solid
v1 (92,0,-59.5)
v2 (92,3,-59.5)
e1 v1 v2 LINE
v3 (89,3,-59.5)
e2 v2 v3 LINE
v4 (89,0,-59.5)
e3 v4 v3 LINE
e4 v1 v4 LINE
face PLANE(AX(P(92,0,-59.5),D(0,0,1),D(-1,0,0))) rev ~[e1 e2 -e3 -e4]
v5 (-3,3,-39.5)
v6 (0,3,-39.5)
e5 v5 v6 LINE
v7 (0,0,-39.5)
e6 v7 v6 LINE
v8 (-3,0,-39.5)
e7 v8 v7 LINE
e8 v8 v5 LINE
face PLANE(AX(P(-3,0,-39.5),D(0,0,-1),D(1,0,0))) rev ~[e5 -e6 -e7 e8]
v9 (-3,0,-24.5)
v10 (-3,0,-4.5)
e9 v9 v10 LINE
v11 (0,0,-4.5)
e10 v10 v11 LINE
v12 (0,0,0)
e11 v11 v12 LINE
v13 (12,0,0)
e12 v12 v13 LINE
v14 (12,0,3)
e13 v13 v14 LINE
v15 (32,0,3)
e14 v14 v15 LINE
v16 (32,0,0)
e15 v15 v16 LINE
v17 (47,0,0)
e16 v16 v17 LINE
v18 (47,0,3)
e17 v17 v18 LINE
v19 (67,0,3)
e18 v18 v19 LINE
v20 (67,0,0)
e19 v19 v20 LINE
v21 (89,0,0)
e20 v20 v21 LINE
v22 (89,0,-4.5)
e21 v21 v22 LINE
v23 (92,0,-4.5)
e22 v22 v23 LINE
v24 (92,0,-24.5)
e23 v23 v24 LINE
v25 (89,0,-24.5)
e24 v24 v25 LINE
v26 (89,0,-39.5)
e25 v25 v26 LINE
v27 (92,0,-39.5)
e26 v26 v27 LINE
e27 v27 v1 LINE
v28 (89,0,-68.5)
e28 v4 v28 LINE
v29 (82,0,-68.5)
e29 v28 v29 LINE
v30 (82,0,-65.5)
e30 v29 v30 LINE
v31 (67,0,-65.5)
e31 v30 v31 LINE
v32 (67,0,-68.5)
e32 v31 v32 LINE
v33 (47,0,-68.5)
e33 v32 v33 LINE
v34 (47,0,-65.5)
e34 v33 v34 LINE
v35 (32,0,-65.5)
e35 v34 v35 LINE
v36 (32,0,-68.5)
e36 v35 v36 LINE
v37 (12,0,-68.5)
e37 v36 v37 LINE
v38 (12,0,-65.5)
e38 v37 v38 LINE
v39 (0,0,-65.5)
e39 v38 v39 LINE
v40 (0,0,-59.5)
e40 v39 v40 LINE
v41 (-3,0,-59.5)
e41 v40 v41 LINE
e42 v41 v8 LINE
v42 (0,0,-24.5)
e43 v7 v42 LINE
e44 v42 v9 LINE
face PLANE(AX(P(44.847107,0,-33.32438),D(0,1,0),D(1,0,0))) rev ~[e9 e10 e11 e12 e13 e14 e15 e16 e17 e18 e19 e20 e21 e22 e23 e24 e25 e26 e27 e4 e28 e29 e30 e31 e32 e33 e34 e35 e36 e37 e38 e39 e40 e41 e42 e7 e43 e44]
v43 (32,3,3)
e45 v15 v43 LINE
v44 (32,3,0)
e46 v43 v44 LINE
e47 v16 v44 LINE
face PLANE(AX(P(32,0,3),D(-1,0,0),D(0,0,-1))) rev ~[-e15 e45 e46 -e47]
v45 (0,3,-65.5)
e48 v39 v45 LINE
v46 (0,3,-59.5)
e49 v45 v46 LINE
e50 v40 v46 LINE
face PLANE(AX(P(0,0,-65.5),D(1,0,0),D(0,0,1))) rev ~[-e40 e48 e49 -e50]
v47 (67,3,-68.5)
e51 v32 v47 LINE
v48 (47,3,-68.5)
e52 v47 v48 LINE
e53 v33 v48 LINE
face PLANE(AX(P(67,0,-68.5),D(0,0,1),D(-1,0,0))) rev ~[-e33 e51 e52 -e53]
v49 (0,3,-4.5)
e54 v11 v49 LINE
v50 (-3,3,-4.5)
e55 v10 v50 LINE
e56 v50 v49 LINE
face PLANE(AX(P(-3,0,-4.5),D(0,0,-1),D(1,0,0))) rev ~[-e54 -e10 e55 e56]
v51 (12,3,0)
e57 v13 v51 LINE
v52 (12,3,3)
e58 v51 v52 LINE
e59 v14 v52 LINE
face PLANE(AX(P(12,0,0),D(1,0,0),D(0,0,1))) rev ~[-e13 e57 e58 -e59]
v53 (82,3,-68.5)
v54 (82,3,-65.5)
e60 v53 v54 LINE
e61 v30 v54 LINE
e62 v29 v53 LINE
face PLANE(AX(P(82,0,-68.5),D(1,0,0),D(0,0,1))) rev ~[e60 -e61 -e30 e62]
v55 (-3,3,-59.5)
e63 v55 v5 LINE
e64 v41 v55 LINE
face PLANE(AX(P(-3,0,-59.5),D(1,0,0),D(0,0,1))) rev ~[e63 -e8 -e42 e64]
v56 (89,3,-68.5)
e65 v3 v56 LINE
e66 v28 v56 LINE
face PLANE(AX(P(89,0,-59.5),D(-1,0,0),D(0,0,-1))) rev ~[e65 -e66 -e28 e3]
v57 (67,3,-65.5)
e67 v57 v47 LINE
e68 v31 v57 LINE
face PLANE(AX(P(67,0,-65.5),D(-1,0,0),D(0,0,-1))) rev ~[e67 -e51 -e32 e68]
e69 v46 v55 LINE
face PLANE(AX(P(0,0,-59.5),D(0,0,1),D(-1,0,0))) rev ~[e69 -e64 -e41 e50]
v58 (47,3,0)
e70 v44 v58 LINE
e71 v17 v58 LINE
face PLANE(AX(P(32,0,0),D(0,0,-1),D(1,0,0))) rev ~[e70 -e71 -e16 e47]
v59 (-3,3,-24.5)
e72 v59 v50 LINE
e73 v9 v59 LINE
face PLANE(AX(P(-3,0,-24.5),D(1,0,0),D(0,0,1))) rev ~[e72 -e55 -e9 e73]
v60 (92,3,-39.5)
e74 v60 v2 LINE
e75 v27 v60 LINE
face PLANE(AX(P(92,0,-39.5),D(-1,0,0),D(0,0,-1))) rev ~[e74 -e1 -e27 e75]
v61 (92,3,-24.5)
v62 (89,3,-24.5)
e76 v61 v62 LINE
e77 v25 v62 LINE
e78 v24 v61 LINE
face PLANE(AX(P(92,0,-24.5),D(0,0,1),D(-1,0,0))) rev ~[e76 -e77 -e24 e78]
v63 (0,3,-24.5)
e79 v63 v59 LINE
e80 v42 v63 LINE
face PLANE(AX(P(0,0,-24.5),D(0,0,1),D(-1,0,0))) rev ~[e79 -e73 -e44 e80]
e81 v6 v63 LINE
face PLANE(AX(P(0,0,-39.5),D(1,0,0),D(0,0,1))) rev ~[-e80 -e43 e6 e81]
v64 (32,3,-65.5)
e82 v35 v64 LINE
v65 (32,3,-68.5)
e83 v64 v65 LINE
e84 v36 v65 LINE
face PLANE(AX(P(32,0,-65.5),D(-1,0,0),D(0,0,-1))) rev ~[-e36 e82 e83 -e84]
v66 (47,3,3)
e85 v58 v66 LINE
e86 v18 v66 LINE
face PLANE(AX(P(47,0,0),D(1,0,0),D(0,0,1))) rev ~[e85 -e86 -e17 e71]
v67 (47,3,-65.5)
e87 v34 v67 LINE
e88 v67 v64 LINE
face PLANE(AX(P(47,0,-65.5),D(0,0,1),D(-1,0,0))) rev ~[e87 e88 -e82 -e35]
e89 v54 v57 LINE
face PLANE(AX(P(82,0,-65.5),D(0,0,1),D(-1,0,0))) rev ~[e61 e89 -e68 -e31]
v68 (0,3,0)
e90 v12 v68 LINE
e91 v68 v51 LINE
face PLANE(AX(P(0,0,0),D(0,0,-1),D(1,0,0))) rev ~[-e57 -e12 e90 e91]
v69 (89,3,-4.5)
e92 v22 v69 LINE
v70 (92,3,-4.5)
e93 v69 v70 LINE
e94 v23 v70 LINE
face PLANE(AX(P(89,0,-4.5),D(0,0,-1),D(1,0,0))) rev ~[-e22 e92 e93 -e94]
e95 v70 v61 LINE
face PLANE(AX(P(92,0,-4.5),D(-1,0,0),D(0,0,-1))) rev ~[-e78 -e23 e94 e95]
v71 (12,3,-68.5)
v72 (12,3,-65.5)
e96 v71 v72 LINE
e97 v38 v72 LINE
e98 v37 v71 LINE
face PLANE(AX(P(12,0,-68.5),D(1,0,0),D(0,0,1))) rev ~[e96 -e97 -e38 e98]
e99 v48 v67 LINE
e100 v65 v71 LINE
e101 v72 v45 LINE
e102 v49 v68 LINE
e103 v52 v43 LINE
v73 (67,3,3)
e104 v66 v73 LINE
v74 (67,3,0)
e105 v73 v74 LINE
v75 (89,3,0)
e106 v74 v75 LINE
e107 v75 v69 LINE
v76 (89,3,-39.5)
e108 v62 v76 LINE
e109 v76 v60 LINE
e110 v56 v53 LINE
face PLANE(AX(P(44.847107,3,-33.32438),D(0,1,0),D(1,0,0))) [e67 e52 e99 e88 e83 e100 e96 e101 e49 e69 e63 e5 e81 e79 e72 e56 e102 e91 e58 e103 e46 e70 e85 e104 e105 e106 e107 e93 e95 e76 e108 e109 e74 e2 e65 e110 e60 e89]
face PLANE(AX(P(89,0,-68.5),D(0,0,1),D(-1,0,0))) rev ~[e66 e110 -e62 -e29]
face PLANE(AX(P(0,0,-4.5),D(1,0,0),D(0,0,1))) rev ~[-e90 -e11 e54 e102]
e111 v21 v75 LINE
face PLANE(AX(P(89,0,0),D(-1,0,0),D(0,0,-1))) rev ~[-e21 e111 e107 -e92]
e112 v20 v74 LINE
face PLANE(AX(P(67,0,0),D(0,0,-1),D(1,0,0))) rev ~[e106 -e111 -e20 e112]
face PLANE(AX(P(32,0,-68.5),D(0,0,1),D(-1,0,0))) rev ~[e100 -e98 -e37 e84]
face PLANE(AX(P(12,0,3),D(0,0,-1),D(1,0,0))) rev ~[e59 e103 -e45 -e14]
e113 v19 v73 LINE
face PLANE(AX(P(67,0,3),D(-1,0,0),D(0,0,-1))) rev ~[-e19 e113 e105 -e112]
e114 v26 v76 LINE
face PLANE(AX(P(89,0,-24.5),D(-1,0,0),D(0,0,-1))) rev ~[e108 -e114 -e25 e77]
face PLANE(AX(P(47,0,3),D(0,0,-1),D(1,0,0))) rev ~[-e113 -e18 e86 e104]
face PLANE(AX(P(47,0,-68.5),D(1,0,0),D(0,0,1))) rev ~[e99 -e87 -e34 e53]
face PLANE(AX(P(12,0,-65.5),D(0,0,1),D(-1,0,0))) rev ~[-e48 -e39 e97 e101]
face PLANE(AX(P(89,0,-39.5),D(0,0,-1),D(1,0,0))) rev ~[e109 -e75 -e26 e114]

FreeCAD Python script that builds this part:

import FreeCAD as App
import Part
import Sketcher

doc = App.newDocument("Part")
body = doc.addObject("PartDesign::Body", "Body")

# Sketch on XZ plane
sketch1 = body.newObject("Sketcher::SketchObject", "Sketch")
sketch1.AttachmentSupport = (doc.getObject("XZ_Plane"), [""])
sketch1.MapMode = "FlatFace"
sketch1.addGeometry(Part.LineSegment(App.Vector(12, -65.5, 0), App.Vector(0, -65.5, 0)), False)
sketch1.addGeometry(Part.LineSegment(App.Vector(0, -65.5, 0), App.Vector(0, -59.5, 0)), False)
sketch1.addGeometry(Part.LineSegment(App.Vector(0, -59.5, 0), App.Vector(-3, -59.5, 0)), False)
sketch1.addGeometry(Part.LineSegment(App.Vector(-3, -59.5, 0), App.Vector(-3, -39.5, 0)), False)
sketch1.addGeometry(Part.LineSegment(App.Vector(-3, -39.5, 0), App.Vector(0, -39.5, 0)), False)
sketch1.addGeometry(Part.LineSegment(App.Vector(0, -39.5, 0), App.Vector(0, -24.5, 0)), False)
sketch1.addGeometry(Part.LineSegment(App.Vector(0, -24.5, 0), App.Vector(-3, -24.5, 0)), False)
sketch1.addGeometry(Part.LineSegment(App.Vector(-3, -24.5, 0), App.Vector(-3, -4.5, 0)), False)
sketch1.addGeometry(Part.LineSegment(App.Vector(-3, -4.5, 0), App.Vector(0, -4.5, 0)), False)
sketch1.addGeometry(Part.LineSegment(App.Vector(0, -4.5, 0), App.Vector(0, 0, 0)), False)
sketch1.addGeometry(Part.LineSegment(App.Vector(0, 0, 0), App.Vector(12, 0, 0)), False)
sketch1.addGeometry(Part.LineSegment(App.Vector(12, 0, 0), App.Vector(12, 3, 0)), False)
sketch1.addGeometry(Part.LineSegment(App.Vector(12, 3, 0), App.Vector(32, 3, 0)), False)
sketch1.addGeometry(Part.LineSegment(App.Vector(32, 3, 0), App.Vector(32, 0, 0)), False)
sketch1.addGeometry(Part.LineSegment(App.Vector(32, 0, 0), App.Vector(47, 0, 0)), False)
sketch1.addGeometry(Part.LineSegment(App.Vector(47, 0, 0), App.Vector(47, 3, 0)), False)
sketch1.addGeometry(Part.LineSegment(App.Vector(47, 3, 0), App.Vector(67, 3, 0)), False)
sketch1.addGeometry(Part.LineSegment(App.Vector(67, 3, 0), App.Vector(67, 0, 0)), False)
sketch1.addGeometry(Part.LineSegment(App.Vector(67, 0, 0), App.Vector(89, 0, 0)), False)
sketch1.addGeometry(Part.LineSegment(App.Vector(89, 0, 0), App.Vector(89, -4.5, 0)), False)
sketch1.addGeometry(Part.LineSegment(App.Vector(89, -4.5, 0), App.Vector(92, -4.5, 0)), False)
sketch1.addGeometry(Part.LineSegment(App.Vector(92, -4.5, 0), App.Vector(92, -24.5, 0)), False)
sketch1.addGeometry(Part.LineSegment(App.Vector(92, -24.5, 0), App.Vector(89, -24.5, 0)), False)
sketch1.addGeometry(Part.LineSegment(App.Vector(89, -24.5, 0), App.Vector(89, -39.5, 0)), False)
sketch1.addGeometry(Part.LineSegment(App.Vector(89, -39.5, 0), App.Vector(92, -39.5, 0)), False)
sketch1.addGeometry(Part.LineSegment(App.Vector(92, -39.5, 0), App.Vector(92, -59.5, 0)), False)
sketch1.addGeometry(Part.LineSegment(App.Vector(92, -59.5, 0), App.Vector(89, -59.5, 0)), False)
sketch1.addGeometry(Part.LineSegment(App.Vector(89, -59.5, 0), App.Vector(89, -68.5, 0)), False)
sketch1.addGeometry(Part.LineSegment(App.Vector(89, -68.5, 0), App.Vector(82, -68.5, 0)), False)
sketch1.addGeometry(Part.LineSegment(App.Vector(82, -68.5, 0), App.Vector(82, -65.5, 0)), False)
sketch1.addGeometry(Part.LineSegment(App.Vector(82, -65.5, 0), App.Vector(67, -65.5, 0)), False)
sketch1.addGeometry(Part.LineSegment(App.Vector(67, -65.5, 0), App.Vector(67, -68.5, 0)), False)
sketch1.addGeometry(Part.LineSegment(App.Vector(67, -68.5, 0), App.Vector(47, -68.5, 0)), False)
sketch1.addGeometry(Part.LineSegment(App.Vector(47, -68.5, 0), App.Vector(47, -65.5, 0)), False)
sketch1.addGeometry(Part.LineSegment(App.Vector(47, -65.5, 0), App.Vector(32, -65.5, 0)), False)
sketch1.addGeometry(Part.LineSegment(App.Vector(32, -65.5, 0), App.Vector(32, -68.5, 0)), False)
sketch1.addGeometry(Part.LineSegment(App.Vector(32, -68.5, 0), App.Vector(12, -68.5, 0)), False)
sketch1.addGeometry(Part.LineSegment(App.Vector(12, -68.5, 0), App.Vector(12, -65.5, 0)), False)
sketch1.addConstraint(Sketcher.Constraint("Coincident", 0, 2, 1, 1))
sketch1.addConstraint(Sketcher.Constraint("Coincident", 1, 2, 2, 1))
sketch1.addConstraint(Sketcher.Constraint("Coincident", 2, 2, 3, 1))
sketch1.addConstraint(Sketcher.Constraint("Coincident", 3, 2, 4, 1))
sketch1.addConstraint(Sketcher.Constraint("Coincident", 4, 2, 5, 1))
sketch1.addConstraint(Sketcher.Constraint("Coincident", 5, 2, 6, 1))
sketch1.addConstraint(Sketcher.Constraint("Coincident", 6, 2, 7, 1))
sketch1.addConstraint(Sketcher.Constraint("Coincident", 7, 2, 8, 1))
sketch1.addConstraint(Sketcher.Constraint("Coincident", 8, 2, 9, 1))
sketch1.addConstraint(Sketcher.Constraint("Coincident", 9, 2, 10, 1))
sketch1.addConstraint(Sketcher.Constraint("Coincident", 10, 2, 11, 1))
sketch1.addConstraint(Sketcher.Constraint("Coincident", 11, 2, 12, 1))
sketch1.addConstraint(Sketcher.Constraint("Coincident", 12, 2, 13, 1))
sketch1.addConstraint(Sketcher.Constraint("Coincident", 13, 2, 14, 1))
sketch1.addConstraint(Sketcher.Constraint("Coincident", 14, 2, 15, 1))
sketch1.addConstraint(Sketcher.Constraint("Coincident", 15, 2, 16, 1))
sketch1.addConstraint(Sketcher.Constraint("Coincident", 16, 2, 17, 1))
sketch1.addConstraint(Sketcher.Constraint("Coincident", 17, 2, 18, 1))
sketch1.addConstraint(Sketcher.Constraint("Coincident", 18, 2, 19, 1))
sketch1.addConstraint(Sketcher.Constraint("Coincident", 19, 2, 20, 1))
sketch1.addConstraint(Sketcher.Constraint("Coincident", 20, 2, 21, 1))
sketch1.addConstraint(Sketcher.Constraint("Coincident", 21, 2, 22, 1))
sketch1.addConstraint(Sketcher.Constraint("Coincident", 22, 2, 23, 1))
sketch1.addConstraint(Sketcher.Constraint("Coincident", 23, 2, 24, 1))
sketch1.addConstraint(Sketcher.Constraint("Coincident", 24, 2, 25, 1))
sketch1.addConstraint(Sketcher.Constraint("Coincident", 25, 2, 26, 1))
sketch1.addConstraint(Sketcher.Constraint("Coincident", 26, 2, 27, 1))
sketch1.addConstraint(Sketcher.Constraint("Coincident", 27, 2, 28, 1))
sketch1.addConstraint(Sketcher.Constraint("Coincident", 28, 2, 29, 1))
sketch1.addConstraint(Sketcher.Constraint("Coincident", 29, 2, 30, 1))
sketch1.addConstraint(Sketcher.Constraint("Coincident", 30, 2, 31, 1))
sketch1.addConstraint(Sketcher.Constraint("Coincident", 31, 2, 32, 1))
sketch1.addConstraint(Sketcher.Constraint("Coincident", 32, 2, 33, 1))
sketch1.addConstraint(Sketcher.Constraint("Coincident", 33, 2, 34, 1))
sketch1.addConstraint(Sketcher.Constraint("Coincident", 34, 2, 35, 1))
sketch1.addConstraint(Sketcher.Constraint("Coincident", 35, 2, 36, 1))
sketch1.addConstraint(Sketcher.Constraint("Coincident", 36, 2, 37, 1))
sketch1.addConstraint(Sketcher.Constraint("Coincident", 37, 2, 0, 1))
sketch1.addConstraint(Sketcher.Constraint("Horizontal", 0))
sketch1.addConstraint(Sketcher.Constraint("Vertical", 1))
sketch1.addConstraint(Sketcher.Constraint("Horizontal", 2))
sketch1.addConstraint(Sketcher.Constraint("Vertical", 3))
sketch1.addConstraint(Sketcher.Constraint("Horizontal", 4))
sketch1.addConstraint(Sketcher.Constraint("Vertical", 5))
sketch1.addConstraint(Sketcher.Constraint("Horizontal", 6))
sketch1.addConstraint(Sketcher.Constraint("Vertical", 7))
sketch1.addConstraint(Sketcher.Constraint("Horizontal", 8))
sketch1.addConstraint(Sketcher.Constraint("Vertical", 9))
sketch1.addConstraint(Sketcher.Constraint("Horizontal", 10))
sketch1.addConstraint(Sketcher.Constraint("Vertical", 11))
sketch1.addConstraint(Sketcher.Constraint("Horizontal", 12))
sketch1.addConstraint(Sketcher.Constraint("Vertical", 13))
sketch1.addConstraint(Sketcher.Constraint("Horizontal", 14))
sketch1.addConstraint(Sketcher.Constraint("Vertical", 15))
sketch1.addConstraint(Sketcher.Constraint("Horizontal", 16))
sketch1.addConstraint(Sketcher.Constraint("Vertical", 17))
sketch1.addConstraint(Sketcher.Constraint("Horizontal", 18))
sketch1.addConstraint(Sketcher.Constraint("Vertical", 19))
sketch1.addConstraint(Sketcher.Constraint("Horizontal", 20))
sketch1.addConstraint(Sketcher.Constraint("Vertical", 21))
sketch1.addConstraint(Sketcher.Constraint("Horizontal", 22))
sketch1.addConstraint(Sketcher.Constraint("Vertical", 23))
sketch1.addConstraint(Sketcher.Constraint("Horizontal", 24))
sketch1.addConstraint(Sketcher.Constraint("Vertical", 25))
sketch1.addConstraint(Sketcher.Constraint("Horizontal", 26))
sketch1.addConstraint(Sketcher.Constraint("Vertical", 27))
sketch1.addConstraint(Sketcher.Constraint("Horizontal", 28))
sketch1.addConstraint(Sketcher.Constraint("Vertical", 29))
sketch1.addConstraint(Sketcher.Constraint("Horizontal", 30))
sketch1.addConstraint(Sketcher.Constraint("Vertical", 31))
sketch1.addConstraint(Sketcher.Constraint("Horizontal", 32))
sketch1.addConstraint(Sketcher.Constraint("Vertical", 33))
sketch1.addConstraint(Sketcher.Constraint("Horizontal", 34))
sketch1.addConstraint(Sketcher.Constraint("Vertical", 35))
sketch1.addConstraint(Sketcher.Constraint("Horizontal", 36))
sketch1.addConstraint(Sketcher.Constraint("Vertical", 37))
sketch1.addConstraint(Sketcher.Constraint("Coincident", 9, 2, -1, 1))
sketch1.addConstraint(Sketcher.Constraint("PointOnObject", 0, 2, -2))
sketch1.addConstraint(Sketcher.Constraint("PointOnObject", 4, 2, -2))
sketch1.addConstraint(Sketcher.Constraint("PointOnObject", 13, 2, -1))
sketch1.addConstraint(Sketcher.Constraint("PointOnObject", 17, 2, -1))
sketch1.addConstraint(Sketcher.Constraint("Horizontal", 12, 2, 15, 2))
sketch1.addConstraint(Sketcher.Constraint("Horizontal", 8, 2, 19, 2))
sketch1.addConstraint(Sketcher.Constraint("Horizontal", 6, 2, 21, 2))
sketch1.addConstraint(Sketcher.Constraint("Horizontal", 4, 2, 23, 2))
sketch1.addConstraint(Sketcher.Constraint("Horizontal", 2, 2, 25, 2))
sketch1.addConstraint(Sketcher.Constraint("Horizontal", 0, 2, 29, 2))
sketch1.addConstraint(Sketcher.Constraint("Horizontal", 28, 2, 31, 2))
sketch1.addConstraint(Sketcher.Constraint("Horizontal", 30, 2, 33, 2))
sketch1.addConstraint(Sketcher.Constraint("Horizontal", 32, 2, 35, 2))
sketch1.addConstraint(Sketcher.Constraint("Vertical", 3, 2, 6, 2))
sketch1.addConstraint(Sketcher.Constraint("Vertical", 19, 2, 22, 2))
sketch1.addConstraint(Sketcher.Constraint("Vertical", 21, 2, 24, 2))
sketch1.addConstraint(Sketcher.Constraint("Vertical", 23, 2, 26, 2))
sketch1.addConstraint(Sketcher.Constraint("Vertical", 17, 2, 30, 2))
sketch1.addConstraint(Sketcher.Constraint("Vertical", 15, 2, 32, 2))
sketch1.addConstraint(Sketcher.Constraint("Vertical", 13, 2, 34, 2))
sketch1.addConstraint(Sketcher.Constraint("Vertical", 11, 2, 36, 2))
sketch1.addConstraint(Sketcher.Constraint("Equal", 12, 16))
sketch1.addConstraint(Sketcher.Constraint("Equal", 8, 20))
sketch1.addConstraint(Sketcher.Constraint("Equal", 14, 30))
sketch1.addConstraint(Sketcher.Constraint("Equal", 36, 3))
sketch1.addConstraint(Sketcher.Constraint("Equal", 34, 5))
sketch1.addConstraint(Sketcher.Constraint("Equal", 3, 7))
sketch1.addConstraint(Sketcher.Constraint("Equal", 26, 11))
sketch1.addConstraint(Sketcher.Constraint("Equal", 17, 29))
sketch1.addConstraint(Sketcher.Constraint("DistanceX", 0, 2, 0, 1, 12.0))
sketch1.addConstraint(Sketcher.Constraint("DistanceX", 2, 2, 2, 1, 3.0))
sketch1.addConstraint(Sketcher.Constraint("DistanceX", 12, 1, 12, 2, 20.0))
sketch1.addConstraint(Sketcher.Constraint("DistanceX", 14, 1, 14, 2, 15.0))
sketch1.addConstraint(Sketcher.Constraint("DistanceX", 18, 1, 18, 2, 22.0))
sketch1.addConstraint(Sketcher.Constraint("DistanceY", 1, 1, 1, 2, 6.0))
sketch1.addConstraint(Sketcher.Constraint("DistanceY", 9, 1, 9, 2, 4.5))
pad1 = body.newObject("PartDesign::Pad", "Pad")
pad1.Profile = sketch1
pad1.Length = 3
pad1.Reversed = True

doc.recompute()
